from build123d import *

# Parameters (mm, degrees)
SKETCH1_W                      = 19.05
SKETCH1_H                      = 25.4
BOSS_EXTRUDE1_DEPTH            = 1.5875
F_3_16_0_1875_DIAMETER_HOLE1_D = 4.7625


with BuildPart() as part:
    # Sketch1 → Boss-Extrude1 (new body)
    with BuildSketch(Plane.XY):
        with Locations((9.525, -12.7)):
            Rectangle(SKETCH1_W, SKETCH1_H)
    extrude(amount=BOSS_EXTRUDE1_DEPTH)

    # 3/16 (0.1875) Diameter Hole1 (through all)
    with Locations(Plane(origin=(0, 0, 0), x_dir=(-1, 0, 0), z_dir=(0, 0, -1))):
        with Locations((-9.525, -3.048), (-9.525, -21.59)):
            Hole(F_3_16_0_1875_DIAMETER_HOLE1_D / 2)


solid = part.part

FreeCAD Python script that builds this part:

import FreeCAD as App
import Part
import Sketcher
from FreeCAD import Vector
Q = App.Units.Quantity

doc = App.newDocument("Part")
body = doc.addObject("PartDesign::Body", "Body")

# Sketch on XY plane
sketch1 = body.newObject("Sketcher::SketchObject", "Sketch")
sketch1.AttachmentSupport = (doc.getObject("XY_Plane"), [""])
sketch1.MapMode = "FlatFace"
sketch1.addGeometry([
    Part.LineSegment(Vector(0, 0, 0), Vector(0, -25, 0)),
    Part.LineSegment(Vector(0, -25, 0), Vector(19, -25, 0)),
    Part.LineSegment(Vector(19, -25, 0), Vector(19, 0, 0)),
    Part.LineSegment(Vector(19, 0, 0), Vector(0, 0, 0)),
], False)
sketch1.addConstraint([
    Sketcher.Constraint("Coincident", 0, 2, 1, 1),
    Sketcher.Constraint("Coincident", 1, 2, 2, 1),
    Sketcher.Constraint("Coincident", 2, 2, 3, 1),
    Sketcher.Constraint("Coincident", 3, 2, 0, 1),
    Sketcher.Constraint("Vertical", 0),
    Sketcher.Constraint("Horizontal", 1),
    Sketcher.Constraint("Vertical", 2),
    Sketcher.Constraint("Horizontal", 3),
    Sketcher.Constraint("Coincident", 3, 2, -1, 1),
    Sketcher.Constraint("DistanceY", 0, 2, 0, 1, Q("1 in")),
    Sketcher.Constraint("DistanceX", 1, 1, 1, 2, Q("0.75 in")),
])
pad1 = body.newObject("PartDesign::Pad", "Pad")
pad1.Profile = sketch1
pad1.Length = Q("0.0625 in")

# Sketch on XY plane
sketch2 = body.newObject("Sketcher::SketchObject", "Sketch001")
sketch2.AttachmentSupport = (doc.getObject("XY_Plane"), [""])
sketch2.MapMode = "FlatFace"
sketch2.addGeometry([
    Part.Circle(Vector(9.5, -3, 0), Vector(0, 0, 1), 2.4),
    Part.Circle(Vector(9.5, -21.6, 0), Vector(0, 0, 1), 2.4),
], False)
sketch2.addConstraint([
    Sketcher.Constraint("Equal", 0, 1),
    Sketcher.Constraint("Vertical", 0, 3, 1, 3),
    Sketcher.Constraint("Diameter", 0, Q("0.1875 in")),
    Sketcher.Constraint("DistanceY", 0, 3, -1, 1, Q("0.12 in")),
    Sketcher.Constraint("DistanceY", 1, 3, -1, 1, Q("0.85 in")),
    Sketcher.Constraint("DistanceX", -1, 1, 0, 3, Q("0.375 in")),
])
doc.recompute()
hole = body.newObject("PartDesign::Hole", "Hole")
hole.Profile = sketch2
hole.ThreadType = "None"
hole.Diameter = Q("0.1875 in")
hole.DepthType = "ThroughAll"
hole.Reversed = True

doc.recompute()
